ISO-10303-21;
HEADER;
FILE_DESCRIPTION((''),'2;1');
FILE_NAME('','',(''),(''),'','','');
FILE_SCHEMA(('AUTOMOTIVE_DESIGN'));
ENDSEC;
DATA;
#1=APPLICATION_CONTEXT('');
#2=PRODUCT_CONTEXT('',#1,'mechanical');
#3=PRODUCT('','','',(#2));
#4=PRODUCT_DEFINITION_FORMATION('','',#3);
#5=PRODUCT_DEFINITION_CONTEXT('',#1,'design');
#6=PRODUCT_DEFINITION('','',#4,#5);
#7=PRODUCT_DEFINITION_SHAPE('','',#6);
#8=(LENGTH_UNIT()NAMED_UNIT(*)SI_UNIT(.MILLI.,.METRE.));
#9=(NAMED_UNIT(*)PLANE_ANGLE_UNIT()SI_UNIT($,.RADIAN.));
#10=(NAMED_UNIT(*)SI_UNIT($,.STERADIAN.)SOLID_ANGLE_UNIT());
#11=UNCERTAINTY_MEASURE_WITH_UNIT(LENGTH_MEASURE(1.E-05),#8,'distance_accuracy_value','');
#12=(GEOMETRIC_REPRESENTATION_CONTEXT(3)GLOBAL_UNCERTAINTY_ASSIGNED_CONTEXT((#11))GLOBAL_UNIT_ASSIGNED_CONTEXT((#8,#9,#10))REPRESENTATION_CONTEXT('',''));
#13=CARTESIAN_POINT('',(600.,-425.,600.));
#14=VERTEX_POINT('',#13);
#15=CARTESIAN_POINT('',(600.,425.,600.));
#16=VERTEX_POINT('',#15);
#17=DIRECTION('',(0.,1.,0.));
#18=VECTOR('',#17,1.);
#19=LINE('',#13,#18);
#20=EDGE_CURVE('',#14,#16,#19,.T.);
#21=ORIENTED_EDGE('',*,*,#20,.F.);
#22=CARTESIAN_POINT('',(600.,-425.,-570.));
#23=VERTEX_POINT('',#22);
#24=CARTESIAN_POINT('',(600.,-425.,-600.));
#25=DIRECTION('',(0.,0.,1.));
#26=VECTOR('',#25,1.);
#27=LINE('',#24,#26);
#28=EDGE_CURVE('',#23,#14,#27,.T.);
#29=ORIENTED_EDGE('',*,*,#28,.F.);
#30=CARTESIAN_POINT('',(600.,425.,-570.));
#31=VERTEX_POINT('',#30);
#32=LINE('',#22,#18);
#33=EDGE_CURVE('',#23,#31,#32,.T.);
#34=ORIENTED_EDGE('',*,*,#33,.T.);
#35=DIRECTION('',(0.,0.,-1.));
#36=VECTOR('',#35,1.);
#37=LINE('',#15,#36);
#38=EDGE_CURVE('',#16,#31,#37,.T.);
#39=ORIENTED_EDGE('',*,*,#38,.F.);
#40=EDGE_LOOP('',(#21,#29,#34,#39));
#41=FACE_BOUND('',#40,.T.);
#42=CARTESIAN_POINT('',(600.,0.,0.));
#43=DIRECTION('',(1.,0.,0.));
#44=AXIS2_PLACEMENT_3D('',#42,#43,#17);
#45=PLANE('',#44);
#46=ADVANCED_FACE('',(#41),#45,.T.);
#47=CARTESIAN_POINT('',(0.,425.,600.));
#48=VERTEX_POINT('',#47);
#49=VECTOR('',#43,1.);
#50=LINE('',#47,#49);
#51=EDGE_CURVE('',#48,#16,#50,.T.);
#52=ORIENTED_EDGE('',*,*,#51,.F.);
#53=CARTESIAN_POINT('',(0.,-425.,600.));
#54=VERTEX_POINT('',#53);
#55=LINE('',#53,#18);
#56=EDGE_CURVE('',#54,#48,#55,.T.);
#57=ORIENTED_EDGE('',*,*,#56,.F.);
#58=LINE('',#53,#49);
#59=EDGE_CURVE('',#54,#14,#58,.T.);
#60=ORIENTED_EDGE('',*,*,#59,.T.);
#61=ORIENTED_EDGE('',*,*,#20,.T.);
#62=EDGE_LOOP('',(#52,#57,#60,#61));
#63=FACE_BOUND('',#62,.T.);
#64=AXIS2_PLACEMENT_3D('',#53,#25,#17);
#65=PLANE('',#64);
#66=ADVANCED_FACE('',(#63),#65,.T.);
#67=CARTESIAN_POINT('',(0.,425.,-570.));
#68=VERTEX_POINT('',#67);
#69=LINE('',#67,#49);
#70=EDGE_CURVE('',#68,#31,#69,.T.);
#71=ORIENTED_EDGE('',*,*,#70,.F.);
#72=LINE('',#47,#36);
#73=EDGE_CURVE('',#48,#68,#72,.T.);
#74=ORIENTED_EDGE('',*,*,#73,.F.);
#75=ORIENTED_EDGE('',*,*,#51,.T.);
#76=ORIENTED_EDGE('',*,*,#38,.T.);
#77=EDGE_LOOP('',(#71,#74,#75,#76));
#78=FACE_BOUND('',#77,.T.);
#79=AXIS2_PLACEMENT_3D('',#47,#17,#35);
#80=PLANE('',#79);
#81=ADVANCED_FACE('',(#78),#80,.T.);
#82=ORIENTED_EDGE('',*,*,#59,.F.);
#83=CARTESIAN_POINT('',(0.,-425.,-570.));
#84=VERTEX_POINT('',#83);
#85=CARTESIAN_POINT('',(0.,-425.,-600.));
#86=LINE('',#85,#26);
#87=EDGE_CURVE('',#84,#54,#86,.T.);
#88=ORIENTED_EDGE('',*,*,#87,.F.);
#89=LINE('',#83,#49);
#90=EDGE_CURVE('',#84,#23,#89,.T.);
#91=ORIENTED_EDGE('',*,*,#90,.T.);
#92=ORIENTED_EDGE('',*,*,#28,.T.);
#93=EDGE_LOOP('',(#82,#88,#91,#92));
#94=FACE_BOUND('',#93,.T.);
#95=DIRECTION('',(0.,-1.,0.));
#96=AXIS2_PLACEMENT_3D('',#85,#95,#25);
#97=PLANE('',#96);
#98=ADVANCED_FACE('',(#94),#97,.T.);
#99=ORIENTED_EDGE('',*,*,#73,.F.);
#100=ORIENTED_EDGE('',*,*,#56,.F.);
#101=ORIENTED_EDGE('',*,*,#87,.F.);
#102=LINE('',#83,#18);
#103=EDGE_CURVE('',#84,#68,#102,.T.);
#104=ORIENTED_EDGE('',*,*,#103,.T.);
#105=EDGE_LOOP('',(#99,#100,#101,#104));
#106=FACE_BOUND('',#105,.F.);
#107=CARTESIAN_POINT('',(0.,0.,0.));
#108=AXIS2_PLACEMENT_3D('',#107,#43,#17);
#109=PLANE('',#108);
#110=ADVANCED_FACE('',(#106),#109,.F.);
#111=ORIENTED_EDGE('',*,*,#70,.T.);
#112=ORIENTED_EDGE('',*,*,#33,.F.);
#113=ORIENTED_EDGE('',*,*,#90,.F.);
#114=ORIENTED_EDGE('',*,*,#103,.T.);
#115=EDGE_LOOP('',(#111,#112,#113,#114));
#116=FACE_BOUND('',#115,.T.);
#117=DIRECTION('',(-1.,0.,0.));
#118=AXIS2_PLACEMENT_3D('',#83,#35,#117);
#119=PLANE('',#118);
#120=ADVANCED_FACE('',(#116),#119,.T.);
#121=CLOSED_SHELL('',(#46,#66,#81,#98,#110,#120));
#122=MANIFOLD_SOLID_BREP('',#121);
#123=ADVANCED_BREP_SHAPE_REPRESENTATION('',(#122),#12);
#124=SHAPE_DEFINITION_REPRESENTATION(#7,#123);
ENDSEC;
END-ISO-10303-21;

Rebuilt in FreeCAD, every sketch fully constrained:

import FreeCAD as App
import Part
import Sketcher

V = App.Vector
Q = App.Units.Quantity


def add_polygon(sketch, points):
    """Adds a closed chain of lines whose ends are joined by coincident constraints."""
    first, n = sketch.GeometryCount, len(points)
    for a, b in zip(points, points[1:] + points[:1]):
        sketch.addGeometry(Part.LineSegment(App.Vector(*a, 0), App.Vector(*b, 0)), False)
    for i in range(n):
        sketch.addConstraint(Sketcher.Constraint("Coincident", first + i, 2, first + (i + 1) % n, 1))

doc = App.newDocument("Part")
params = doc.addObject("Spreadsheet::Sheet", "Params")
for row, (alias, value) in enumerate([
    ("sketch1_width", "850 mm"),
    ("sketch1_height", "1200 mm"),
    ("pad1_length", "600 mm"),
    ("sketch2_width", "600 mm"),
    ("sketch2_height", "850 mm"),
    ("pocket1_length", "30 mm"),
], start=1):
    params.set(f"A{row}", alias)
    params.set(f"B{row}", "=" + value)
    params.setAlias(f"B{row}", alias)

body = doc.addObject("PartDesign::Body", "Body")

sketch1 = doc.addObject("Sketcher::SketchObject", "Sketch")
body.addObject(sketch1)
sketch1.AttachmentSupport = (doc.YZ_Plane, [""])
sketch1.MapMode = "FlatFace"
add_polygon(sketch1, [(-425, -600), (425, -600), (425, 600), (-425, 600)])
sketch1.addConstraint([
    Sketcher.Constraint("Horizontal", 0),
    Sketcher.Constraint("Vertical", 1),
    Sketcher.Constraint("Horizontal", 2),
    Sketcher.Constraint("Vertical", 3),
    Sketcher.Constraint("Symmetric", 0, 2, 2, 2, -1, 1),
    Sketcher.Constraint("DistanceX", 0, 1, 0, 2, Q("850 mm")),
    Sketcher.Constraint("DistanceY", 1, 1, 1, 2, Q("1200 mm")),
])
sketch1.setExpression("Constraints[9]", "Params.sketch1_width")
sketch1.setExpression("Constraints[10]", "Params.sketch1_height")
pad1 = doc.addObject("PartDesign::Pad", "Pad")
body.addObject(pad1)
pad1.Profile = sketch1
pad1.setExpression("Length", "Params.pad1_length")

sketch2 = doc.addObject("Sketcher::SketchObject", "Sketch001")
body.addObject(sketch2)
sketch2.AttachmentSupport = (doc.XY_Plane, [""])
sketch2.MapMode = "FlatFace"
sketch2.AttachmentOffset = App.Placement(V(0, 0, -600), App.Rotation())
add_polygon(sketch2, [(600, -425), (0, -425), (0, 425), (600, 425)])
sketch2.addConstraint([
    Sketcher.Constraint("Horizontal", 0),
    Sketcher.Constraint("Vertical", 1),
    Sketcher.Constraint("Horizontal", 2),
    Sketcher.Constraint("Vertical", 3),
    Sketcher.Constraint("Symmetric", 0, 2, 1, 2, -1, 1),
    Sketcher.Constraint("DistanceX", 0, 2, 0, 1, Q("600 mm")),
    Sketcher.Constraint("DistanceY", 1, 1, 1, 2, Q("850 mm")),
])
sketch2.setExpression("Constraints[9]", "Params.sketch2_width")
sketch2.setExpression("Constraints[10]", "Params.sketch2_height")
pocket1 = doc.addObject("PartDesign::Pocket", "Pocket")
body.addObject(pocket1)
pocket1.Profile = sketch2
pocket1.setExpression("Length", "Params.pocket1_length")
pocket1.Reversed = True

doc.recompute()
